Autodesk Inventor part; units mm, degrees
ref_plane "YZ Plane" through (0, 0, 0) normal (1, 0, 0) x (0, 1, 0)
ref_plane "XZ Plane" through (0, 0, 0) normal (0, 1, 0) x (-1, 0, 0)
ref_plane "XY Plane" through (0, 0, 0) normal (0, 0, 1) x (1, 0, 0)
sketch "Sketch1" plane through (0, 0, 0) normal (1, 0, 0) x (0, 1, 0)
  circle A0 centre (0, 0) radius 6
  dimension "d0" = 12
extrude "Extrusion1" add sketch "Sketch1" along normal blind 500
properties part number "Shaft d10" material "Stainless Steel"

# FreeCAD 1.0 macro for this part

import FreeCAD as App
import Part
import Sketcher
from FreeCAD import Vector

doc = App.newDocument("Part")
params = doc.addObject("Spreadsheet::Sheet", "Params")
for row, (alias, value) in enumerate([
    ("sketch1_diameter", "12 mm"),
    ("pad1_length", "500 mm"),
], start=1):
    params.set(f"A{row}", alias)
    params.set(f"B{row}", "=" + value)
    params.setAlias(f"B{row}", alias)

body = doc.addObject("PartDesign::Body", "Body")

sketch1 = body.newObject("Sketcher::SketchObject", "Sketch")
sketch1.AttachmentSupport = (doc.getObject("YZ_Plane"), [""])
sketch1.MapMode = "FlatFace"
sketch1.addGeometry(Part.Circle(Vector(0, 0, 0), Vector(0, 0, 1), 6), False)
sketch1.addConstraint(Sketcher.Constraint("Coincident", 0, 3, -1, 1))
sketch1.addConstraint(Sketcher.Constraint("Diameter", 0, 12.0))
sketch1.setExpression("Constraints[1]", "Params.sketch1_diameter")
pad1 = body.newObject("PartDesign::Pad", "Pad")
pad1.Profile = sketch1
pad1.setExpression("Length", "Params.pad1_length")

doc.recompute()
